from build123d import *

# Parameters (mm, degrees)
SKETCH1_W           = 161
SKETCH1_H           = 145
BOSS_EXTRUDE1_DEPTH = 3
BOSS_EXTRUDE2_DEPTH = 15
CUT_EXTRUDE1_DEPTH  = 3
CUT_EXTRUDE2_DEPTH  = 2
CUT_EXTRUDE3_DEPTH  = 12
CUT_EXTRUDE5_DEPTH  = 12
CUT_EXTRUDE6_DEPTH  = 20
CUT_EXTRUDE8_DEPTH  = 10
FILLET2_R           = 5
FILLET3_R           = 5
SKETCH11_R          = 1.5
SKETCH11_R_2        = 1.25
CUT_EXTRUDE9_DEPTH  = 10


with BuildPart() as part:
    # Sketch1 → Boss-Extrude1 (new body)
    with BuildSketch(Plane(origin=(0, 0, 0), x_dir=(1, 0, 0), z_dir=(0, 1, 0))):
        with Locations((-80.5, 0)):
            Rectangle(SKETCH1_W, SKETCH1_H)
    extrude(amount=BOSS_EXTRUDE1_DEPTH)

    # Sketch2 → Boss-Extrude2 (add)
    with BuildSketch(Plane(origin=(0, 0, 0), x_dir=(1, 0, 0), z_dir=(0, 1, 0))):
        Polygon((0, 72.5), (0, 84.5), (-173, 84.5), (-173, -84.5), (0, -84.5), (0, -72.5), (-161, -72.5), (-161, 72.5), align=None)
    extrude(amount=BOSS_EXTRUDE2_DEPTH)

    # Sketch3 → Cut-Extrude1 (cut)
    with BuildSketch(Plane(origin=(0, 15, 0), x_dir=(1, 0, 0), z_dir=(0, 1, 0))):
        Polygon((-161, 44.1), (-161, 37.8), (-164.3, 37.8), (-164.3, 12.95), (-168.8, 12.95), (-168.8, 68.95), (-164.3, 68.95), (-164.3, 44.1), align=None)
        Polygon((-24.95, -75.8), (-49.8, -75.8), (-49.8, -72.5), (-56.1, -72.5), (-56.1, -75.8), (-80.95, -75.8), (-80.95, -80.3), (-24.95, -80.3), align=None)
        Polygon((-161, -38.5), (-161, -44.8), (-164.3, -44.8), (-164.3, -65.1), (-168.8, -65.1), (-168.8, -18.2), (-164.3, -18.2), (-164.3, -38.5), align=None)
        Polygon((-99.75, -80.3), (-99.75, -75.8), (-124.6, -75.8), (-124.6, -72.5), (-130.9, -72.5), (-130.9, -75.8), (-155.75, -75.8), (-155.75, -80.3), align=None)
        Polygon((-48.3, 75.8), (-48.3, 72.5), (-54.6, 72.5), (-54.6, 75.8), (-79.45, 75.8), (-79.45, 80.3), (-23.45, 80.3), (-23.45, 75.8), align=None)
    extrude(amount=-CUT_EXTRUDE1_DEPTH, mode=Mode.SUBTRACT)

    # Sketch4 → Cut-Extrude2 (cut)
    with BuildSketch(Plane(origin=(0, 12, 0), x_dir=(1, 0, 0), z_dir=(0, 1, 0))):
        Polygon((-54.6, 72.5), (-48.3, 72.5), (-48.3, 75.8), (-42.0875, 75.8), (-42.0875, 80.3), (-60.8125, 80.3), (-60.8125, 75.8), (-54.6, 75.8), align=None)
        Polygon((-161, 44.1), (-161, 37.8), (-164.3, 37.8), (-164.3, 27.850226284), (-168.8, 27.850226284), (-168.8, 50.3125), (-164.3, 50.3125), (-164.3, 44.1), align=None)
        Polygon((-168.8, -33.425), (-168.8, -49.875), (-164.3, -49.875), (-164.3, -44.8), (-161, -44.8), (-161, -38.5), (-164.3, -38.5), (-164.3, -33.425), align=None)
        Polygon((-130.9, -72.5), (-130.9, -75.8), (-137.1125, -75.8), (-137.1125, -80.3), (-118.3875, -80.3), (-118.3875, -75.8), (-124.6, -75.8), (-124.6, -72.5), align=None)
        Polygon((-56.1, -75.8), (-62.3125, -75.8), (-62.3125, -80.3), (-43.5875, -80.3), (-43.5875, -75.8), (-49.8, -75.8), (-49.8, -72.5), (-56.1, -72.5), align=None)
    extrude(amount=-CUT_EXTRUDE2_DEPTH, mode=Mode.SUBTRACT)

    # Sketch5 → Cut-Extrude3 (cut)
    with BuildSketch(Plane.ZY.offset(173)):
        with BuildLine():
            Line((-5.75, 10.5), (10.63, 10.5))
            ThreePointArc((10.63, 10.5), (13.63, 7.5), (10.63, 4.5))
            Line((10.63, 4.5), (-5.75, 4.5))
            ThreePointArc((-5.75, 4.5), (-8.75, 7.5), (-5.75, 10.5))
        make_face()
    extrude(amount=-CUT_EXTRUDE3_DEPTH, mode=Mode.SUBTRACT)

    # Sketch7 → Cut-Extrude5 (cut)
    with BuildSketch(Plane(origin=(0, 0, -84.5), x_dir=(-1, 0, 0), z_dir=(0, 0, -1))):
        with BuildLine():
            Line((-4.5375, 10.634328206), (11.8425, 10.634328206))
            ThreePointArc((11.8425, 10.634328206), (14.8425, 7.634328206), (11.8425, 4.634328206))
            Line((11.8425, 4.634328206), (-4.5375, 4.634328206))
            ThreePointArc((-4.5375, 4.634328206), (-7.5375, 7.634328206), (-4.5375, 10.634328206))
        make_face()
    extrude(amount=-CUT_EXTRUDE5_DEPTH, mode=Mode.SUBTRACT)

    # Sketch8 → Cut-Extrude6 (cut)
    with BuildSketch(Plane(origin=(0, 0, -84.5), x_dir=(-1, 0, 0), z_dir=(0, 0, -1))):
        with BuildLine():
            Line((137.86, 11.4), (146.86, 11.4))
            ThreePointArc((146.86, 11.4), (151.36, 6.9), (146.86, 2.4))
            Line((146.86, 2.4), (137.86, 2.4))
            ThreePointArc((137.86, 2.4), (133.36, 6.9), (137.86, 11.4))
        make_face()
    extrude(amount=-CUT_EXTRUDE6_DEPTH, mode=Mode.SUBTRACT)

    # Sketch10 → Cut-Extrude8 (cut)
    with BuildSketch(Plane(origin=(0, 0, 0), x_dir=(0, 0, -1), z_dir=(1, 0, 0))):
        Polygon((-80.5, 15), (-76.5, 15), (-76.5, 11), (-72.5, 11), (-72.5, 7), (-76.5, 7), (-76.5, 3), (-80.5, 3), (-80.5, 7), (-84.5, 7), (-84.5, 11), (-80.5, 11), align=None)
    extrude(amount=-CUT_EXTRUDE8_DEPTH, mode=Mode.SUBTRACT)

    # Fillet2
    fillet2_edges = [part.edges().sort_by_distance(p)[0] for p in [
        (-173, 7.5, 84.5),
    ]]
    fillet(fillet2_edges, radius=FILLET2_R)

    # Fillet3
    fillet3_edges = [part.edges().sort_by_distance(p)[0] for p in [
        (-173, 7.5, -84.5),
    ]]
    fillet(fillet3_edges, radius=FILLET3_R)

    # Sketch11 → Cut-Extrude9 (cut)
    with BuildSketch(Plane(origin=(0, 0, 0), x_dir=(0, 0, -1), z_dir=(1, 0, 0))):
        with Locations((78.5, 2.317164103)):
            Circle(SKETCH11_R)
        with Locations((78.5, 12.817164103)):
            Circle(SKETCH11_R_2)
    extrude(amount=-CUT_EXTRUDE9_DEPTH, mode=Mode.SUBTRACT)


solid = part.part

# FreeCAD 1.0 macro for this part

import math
import FreeCAD as App
import Part
import Sketcher
Q = App.Units.Quantity


def edges_at(feature, points):
    """Names of the edges that pass closest to the given points."""
    edges = feature.Shape.Edges
    near = lambda p: min(range(len(edges)), key=lambda i: edges[i].distToShape(Part.Vertex(*p))[0])
    return sorted({f"Edge{near(p) + 1}" for p in points})

doc = App.newDocument("Part")
body = doc.addObject("PartDesign::Body", "Body")

# Sketch on XZ plane
sketch1 = doc.addObject("Sketcher::SketchObject", "Sketch")
body.addObject(sketch1)
sketch1.AttachmentSupport = (doc.XZ_Plane, [""])
sketch1.MapMode = "FlatFace"
sketch1.addGeometry([
    Part.LineSegment(App.Vector(-161, -72.5, 0), App.Vector(-161, 72.5, 0)),
    Part.LineSegment(App.Vector(-161, 72.5, 0), App.Vector(0, 72.5, 0)),
    Part.LineSegment(App.Vector(0, 72.5, 0), App.Vector(0, -72.5, 0)),
    Part.LineSegment(App.Vector(0, -72.5, 0), App.Vector(-161, -72.5, 0)),
], False)
sketch1.addConstraint([
    Sketcher.Constraint("Coincident", 0, 2, 1, 1),
    Sketcher.Constraint("Coincident", 1, 2, 2, 1),
    Sketcher.Constraint("Coincident", 2, 2, 3, 1),
    Sketcher.Constraint("Coincident", 3, 2, 0, 1),
    Sketcher.Constraint("Vertical", 0),
    Sketcher.Constraint("Horizontal", 1),
    Sketcher.Constraint("Vertical", 2),
    Sketcher.Constraint("Horizontal", 3),
    Sketcher.Constraint("Symmetric", 1, 2, 2, 2, -1, 1),
    Sketcher.Constraint("DistanceX", 1, 1, 1, 2, Q("161 mm")),
    Sketcher.Constraint("DistanceY", 0, 1, 0, 2, Q("145 mm")),
])
pad1 = doc.addObject("PartDesign::Pad", "Pad")
body.addObject(pad1)
pad1.Profile = sketch1
pad1.Length = 3
pad1.Reversed = True

# Sketch on XZ plane
sketch2 = doc.addObject("Sketcher::SketchObject", "Sketch001")
body.addObject(sketch2)
sketch2.AttachmentSupport = (doc.XZ_Plane, [""])
sketch2.MapMode = "FlatFace"
sketch2.addGeometry([
    Part.LineSegment(App.Vector(0, -72.5, 0), App.Vector(0, -84.5, 0)),  # 0
    Part.LineSegment(App.Vector(0, -84.5, 0), App.Vector(-173, -84.5, 0)),  # 1
    Part.LineSegment(App.Vector(-173, -84.5, 0), App.Vector(-173, 84.5, 0)),  # 2
    Part.LineSegment(App.Vector(-173, 84.5, 0), App.Vector(0, 84.5, 0)),  # 3
    Part.LineSegment(App.Vector(0, 84.5, 0), App.Vector(0, 72.5, 0)),  # 4
    Part.LineSegment(App.Vector(0, 72.5, 0), App.Vector(-161, 72.5, 0)),  # 5
    Part.LineSegment(App.Vector(-161, 72.5, 0), App.Vector(-161, -72.5, 0)),  # 6
    Part.LineSegment(App.Vector(-161, -72.5, 0), App.Vector(0, -72.5, 0)),  # 7
], False)
sketch2.addConstraint([
    Sketcher.Constraint("Coincident", 0, 2, 1, 1),
    Sketcher.Constraint("Coincident", 1, 2, 2, 1),
    Sketcher.Constraint("Coincident", 2, 2, 3, 1),
    Sketcher.Constraint("Coincident", 3, 2, 4, 1),
    Sketcher.Constraint("Coincident", 4, 2, 5, 1),
    Sketcher.Constraint("Coincident", 5, 2, 6, 1),
    Sketcher.Constraint("Coincident", 6, 2, 7, 1),
    Sketcher.Constraint("Coincident", 7, 2, 0, 1),
    Sketcher.Constraint("Vertical", 0),
    Sketcher.Constraint("Horizontal", 1),
    Sketcher.Constraint("Vertical", 2),
    Sketcher.Constraint("Horizontal", 3),
    Sketcher.Constraint("Vertical", 4),
    Sketcher.Constraint("Horizontal", 5),
    Sketcher.Constraint("Vertical", 6),
    Sketcher.Constraint("Horizontal", 7),
    Sketcher.Constraint("Symmetric", 0, 2, 3, 2, -1, 1),
    Sketcher.Constraint("Symmetric", 4, 2, 7, 2, -1),
    Sketcher.Constraint("DistanceX", 1, 2, 1, 1, Q("173 mm")),
    Sketcher.Constraint("DistanceX", 5, 2, 5, 1, Q("161 mm")),
    Sketcher.Constraint("DistanceY", 0, 2, 0, 1, Q("12 mm")),
    Sketcher.Constraint("DistanceY", 2, 1, 2, 2, Q("169 mm")),
])
pad2 = doc.addObject("PartDesign::Pad", "Pad001")
body.addObject(pad2)
pad2.Profile = sketch2
pad2.Length = 15
pad2.Reversed = True

# Sketch on XZ plane
sketch3 = doc.addObject("Sketcher::SketchObject", "Sketch002")
body.addObject(sketch3)
sketch3.AttachmentSupport = (doc.XZ_Plane, [""])
sketch3.MapMode = "FlatFace"
sketch3.AttachmentOffset = App.Placement(App.Vector(0, 0, -15), App.Rotation())
sketch3.addGeometry([
    Part.LineSegment(App.Vector(-161, -37.8, 0), App.Vector(-161, -44.1, 0)),  # 0
    Part.LineSegment(App.Vector(-161, -44.1, 0), App.Vector(-164.3, -44.1, 0)),  # 1
    Part.LineSegment(App.Vector(-164.3, -44.1, 0), App.Vector(-164.3, -68.95, 0)),  # 2
    Part.LineSegment(App.Vector(-164.3, -68.95, 0), App.Vector(-168.8, -68.95, 0)),  # 3
    Part.LineSegment(App.Vector(-168.8, -68.95, 0), App.Vector(-168.8, -12.95, 0)),  # 4
    Part.LineSegment(App.Vector(-168.8, -12.95, 0), App.Vector(-164.3, -12.95, 0)),  # 5
    Part.LineSegment(App.Vector(-164.3, -12.95, 0), App.Vector(-164.3, -37.8, 0)),  # 6
    Part.LineSegment(App.Vector(-164.3, -37.8, 0), App.Vector(-161, -37.8, 0)),  # 7
    Part.LineSegment(App.Vector(-24.95, 75.8, 0), App.Vector(-49.8, 75.8, 0)),  # 8
    Part.LineSegment(App.Vector(-49.8, 75.8, 0), App.Vector(-49.8, 72.5, 0)),  # 9
    Part.LineSegment(App.Vector(-49.8, 72.5, 0), App.Vector(-56.1, 72.5, 0)),  # 10
    Part.LineSegment(App.Vector(-56.1, 72.5, 0), App.Vector(-56.1, 75.8, 0)),  # 11
    Part.LineSegment(App.Vector(-56.1, 75.8, 0), App.Vector(-80.95, 75.8, 0)),  # 12
    Part.LineSegment(App.Vector(-80.95, 75.8, 0), App.Vector(-80.95, 80.3, 0)),  # 13
    Part.LineSegment(App.Vector(-80.95, 80.3, 0), App.Vector(-24.95, 80.3, 0)),  # 14
    Part.LineSegment(App.Vector(-24.95, 80.3, 0), App.Vector(-24.95, 75.8, 0)),  # 15
    Part.LineSegment(App.Vector(-161, 44.8, 0), App.Vector(-161, 38.5, 0)),  # 16
    Part.LineSegment(App.Vector(-161, 38.5, 0), App.Vector(-164.3, 38.5, 0)),  # 17
    Part.LineSegment(App.Vector(-164.3, 38.5, 0), App.Vector(-164.3, 18.2, 0)),  # 18
    Part.LineSegment(App.Vector(-164.3, 18.2, 0), App.Vector(-168.8, 18.2, 0)),  # 19
    Part.LineSegment(App.Vector(-168.8, 18.2, 0), App.Vector(-168.8, 65.1, 0)),  # 20
    Part.LineSegment(App.Vector(-168.8, 65.1, 0), App.Vector(-164.3, 65.1, 0)),  # 21
    Part.LineSegment(App.Vector(-164.3, 65.1, 0), App.Vector(-164.3, 44.8, 0)),  # 22
    Part.LineSegment(App.Vector(-164.3, 44.8, 0), App.Vector(-161, 44.8, 0)),  # 23
    Part.LineSegment(App.Vector(-99.75, 80.3, 0), App.Vector(-99.75, 75.8, 0)),  # 24
    Part.LineSegment(App.Vector(-99.75, 75.8, 0), App.Vector(-124.6, 75.8, 0)),  # 25
    Part.LineSegment(App.Vector(-124.6, 75.8, 0), App.Vector(-124.6, 72.5, 0)),  # 26
    Part.LineSegment(App.Vector(-124.6, 72.5, 0), App.Vector(-130.9, 72.5, 0)),  # 27
    Part.LineSegment(App.Vector(-130.9, 72.5, 0), App.Vector(-130.9, 75.8, 0)),  # 28
    Part.LineSegment(App.Vector(-130.9, 75.8, 0), App.Vector(-155.75, 75.8, 0)),  # 29
    Part.LineSegment(App.Vector(-155.75, 75.8, 0), App.Vector(-155.75, 80.3, 0)),  # 30
    Part.LineSegment(App.Vector(-155.75, 80.3, 0), App.Vector(-99.75, 80.3, 0)),  # 31
    Part.LineSegment(App.Vector(-48.3, -72.5, 0), App.Vector(-48.3, -75.8, 0)),  # 32
    Part.LineSegment(App.Vector(-48.3, -75.8, 0), App.Vector(-23.45, -75.8, 0)),  # 33
    Part.LineSegment(App.Vector(-23.45, -75.8, 0), App.Vector(-23.45, -80.3, 0)),  # 34
    Part.LineSegment(App.Vector(-23.45, -80.3, 0), App.Vector(-79.45, -80.3, 0)),  # 35
    Part.LineSegment(App.Vector(-79.45, -80.3, 0), App.Vector(-79.45, -75.8, 0)),  # 36
    Part.LineSegment(App.Vector(-79.45, -75.8, 0), App.Vector(-54.6, -75.8, 0)),  # 37
    Part.LineSegment(App.Vector(-54.6, -75.8, 0), App.Vector(-54.6, -72.5, 0)),  # 38
    Part.LineSegment(App.Vector(-54.6, -72.5, 0), App.Vector(-48.3, -72.5, 0)),  # 39
], False)
sketch3.addConstraint([
    Sketcher.Constraint("Coincident", 0, 2, 1, 1),
    Sketcher.Constraint("Coincident", 1, 2, 2, 1),
    Sketcher.Constraint("Coincident", 2, 2, 3, 1),
    Sketcher.Constraint("Coincident", 3, 2, 4, 1),
    Sketcher.Constraint("Coincident", 4, 2, 5, 1),
    Sketcher.Constraint("Coincident", 5, 2, 6, 1),
    Sketcher.Constraint("Coincident", 6, 2, 7, 1),
    Sketcher.Constraint("Coincident", 7, 2, 0, 1),
    Sketcher.Constraint("Coincident", 8, 2, 9, 1),
    Sketcher.Constraint("Coincident", 9, 2, 10, 1),
    Sketcher.Constraint("Coincident", 10, 2, 11, 1),
    Sketcher.Constraint("Coincident", 11, 2, 12, 1),
    Sketcher.Constraint("Coincident", 12, 2, 13, 1),
    Sketcher.Constraint("Coincident", 13, 2, 14, 1),
    Sketcher.Constraint("Coincident", 14, 2, 15, 1),
    Sketcher.Constraint("Coincident", 15, 2, 8, 1),
    Sketcher.Constraint("Coincident", 16, 2, 17, 1),
    Sketcher.Constraint("Coincident", 17, 2, 18, 1),
    Sketcher.Constraint("Coincident", 18, 2, 19, 1),
    Sketcher.Constraint("Coincident", 19, 2, 20, 1),
    Sketcher.Constraint("Coincident", 20, 2, 21, 1),
    Sketcher.Constraint("Coincident", 21, 2, 22, 1),
    Sketcher.Constraint("Coincident", 22, 2, 23, 1),
    Sketcher.Constraint("Coincident", 23, 2, 16, 1),
    Sketcher.Constraint("Coincident", 24, 2, 25, 1),
    Sketcher.Constraint("Coincident", 25, 2, 26, 1),
    Sketcher.Constraint("Coincident", 26, 2, 27, 1),
    Sketcher.Constraint("Coincident", 27, 2, 28, 1),
    Sketcher.Constraint("Coincident", 28, 2, 29, 1),
    Sketcher.Constraint("Coincident", 29, 2, 30, 1),
    Sketcher.Constraint("Coincident", 30, 2, 31, 1),
    Sketcher.Constraint("Coincident", 31, 2, 24, 1),
    Sketcher.Constraint("Coincident", 32, 2, 33, 1),
    Sketcher.Constraint("Coincident", 33, 2, 34, 1),
    Sketcher.Constraint("Coincident", 34, 2, 35, 1),
    Sketcher.Constraint("Coincident", 35, 2, 36, 1),
    Sketcher.Constraint("Coincident", 36, 2, 37, 1),
    Sketcher.Constraint("Coincident", 37, 2, 38, 1),
    Sketcher.Constraint("Coincident", 38, 2, 39, 1),
    Sketcher.Constraint("Coincident", 39, 2, 32, 1),
    Sketcher.Constraint("Vertical", 0),
    Sketcher.Constraint("Horizontal", 1),
    Sketcher.Constraint("Vertical", 2),
    Sketcher.Constraint("Horizontal", 3),
    Sketcher.Constraint("Vertical", 4),
    Sketcher.Constraint("Horizontal", 5),
    Sketcher.Constraint("Vertical", 6),
    Sketcher.Constraint("Horizontal", 7),
    Sketcher.Constraint("Horizontal", 8),
    Sketcher.Constraint("Vertical", 9),
    Sketcher.Constraint("Horizontal", 10),
    Sketcher.Constraint("Vertical", 11),
    Sketcher.Constraint("Horizontal", 12),
    Sketcher.Constraint("Vertical", 13),
    Sketcher.Constraint("Horizontal", 14),
    Sketcher.Constraint("Vertical", 15),
    Sketcher.Constraint("Vertical", 16),
    Sketcher.Constraint("Horizontal", 17),
    Sketcher.Constraint("Vertical", 18),
    Sketcher.Constraint("Horizontal", 19),
    Sketcher.Constraint("Vertical", 20),
    Sketcher.Constraint("Horizontal", 21),
    Sketcher.Constraint("Vertical", 22),
    Sketcher.Constraint("Horizontal", 23),
    Sketcher.Constraint("Vertical", 24),
    Sketcher.Constraint("Horizontal", 25),
    Sketcher.Constraint("Vertical", 26),
    Sketcher.Constraint("Horizontal", 27),
    Sketcher.Constraint("Vertical", 28),
    Sketcher.Constraint("Horizontal", 29),
    Sketcher.Constraint("Vertical", 30),
    Sketcher.Constraint("Horizontal", 31),
    Sketcher.Constraint("Vertical", 32),
    Sketcher.Constraint("Horizontal", 33),
    Sketcher.Constraint("Vertical", 34),
    Sketcher.Constraint("Horizontal", 35),
    Sketcher.Constraint("Vertical", 36),
    Sketcher.Constraint("Horizontal", 37),
    Sketcher.Constraint("Vertical", 38),
    Sketcher.Constraint("Horizontal", 39),
    Sketcher.Constraint("Horizontal", 8, 2, 11, 2),
    Sketcher.Constraint("Horizontal", 15, 2, 24, 2),
    Sketcher.Constraint("Horizontal", 10, 2, 26, 2),
    Sketcher.Constraint("Horizontal", 25, 2, 28, 2),
    Sketcher.Constraint("Horizontal", 14, 2, 30, 2),
    Sketcher.Constraint("Horizontal", 33, 2, 36, 2),
    Sketcher.Constraint("Vertical", 2, 2, 5, 2),
    Sketcher.Constraint("Vertical", 7, 2, 16, 2),
    Sketcher.Constraint("Vertical", 6, 2, 17, 2),
    Sketcher.Constraint("Vertical", 4, 2, 19, 2),
    Sketcher.Constraint("Vertical", 18, 2, 21, 2),
    Sketcher.Constraint("Equal", 8, 12),
    Sketcher.Constraint("Equal", 12, 25),
    Sketcher.Constraint("Equal", 10, 27),
    Sketcher.Constraint("Equal", 25, 29),
    Sketcher.Constraint("Equal", 29, 33),
    Sketcher.Constraint("Equal", 31, 35),
    Sketcher.Constraint("Equal", 33, 37),
    Sketcher.Constraint("Equal", 39, 0),
    Sketcher.Constraint("Equal", 37, 2),
    Sketcher.Constraint("Equal", 35, 4),
    Sketcher.Constraint("Equal", 23, 9),
    Sketcher.Constraint("Equal", 21, 13),
    Sketcher.Constraint("Equal", 0, 16),
    Sketcher.Constraint("Equal", 18, 22),
    Sketcher.Constraint("Equal", 28, 32),
    Sketcher.Constraint("Equal", 30, 34),
    Sketcher.Constraint("DistanceX", 14, 1, 14, 2, Q("56 mm")),
    Sketcher.Constraint("DistanceX", 1, 2, 1, 1, Q("3.3 mm")),
    Sketcher.Constraint("DistanceX", 3, 2, 3, 1, Q("4.5 mm")),
    Sketcher.Constraint("DistanceX", 10, 2, 10, 1, Q("6.3 mm")),
    Sketcher.Constraint("DistanceY", 18, 2, 18, 1, Q("20.3 mm")),
    Sketcher.Constraint("DistanceX", 0, 2, -1, 1, Q("161 mm")),
    Sketcher.Constraint("DistanceX", 4, 2, 8, 2, Q("119 mm")),
    Sketcher.Constraint("DistanceY", 6, 2, 18, 2, Q("56 mm")),
    Sketcher.Constraint("DistanceX", 2, 2, 32, 2, Q("116 mm")),
    Sketcher.Constraint("DistanceY", 32, 2, 7, 2, Q("38 mm")),
    Sketcher.Constraint("DistanceY", 0, 2, -1, 1, Q("44.1 mm")),
    Sketcher.Constraint("DistanceY", -1, 1, 8, 2, Q("75.8 mm")),
    Sketcher.Constraint("DistanceX", 25, 2, -1, 1, Q("124.6 mm")),
])
pocket1 = doc.addObject("PartDesign::Pocket", "Pocket")
body.addObject(pocket1)
pocket1.Profile = sketch3
pocket1.Length = 3
pocket1.Reversed = True

# Sketch on XZ plane
sketch4 = doc.addObject("Sketcher::SketchObject", "Sketch003")
body.addObject(sketch4)
sketch4.AttachmentSupport = (doc.XZ_Plane, [""])
sketch4.MapMode = "FlatFace"
sketch4.AttachmentOffset = App.Placement(App.Vector(0, 0, -12), App.Rotation())
sketch4.addGeometry([
    Part.LineSegment(App.Vector(-54.6, -72.5, 0), App.Vector(-48.3, -72.5, 0)),  # 0
    Part.LineSegment(App.Vector(-48.3, -72.5, 0), App.Vector(-48.3, -75.8, 0)),  # 1
    Part.LineSegment(App.Vector(-48.3, -75.8, 0), App.Vector(-42.0875, -75.8, 0)),  # 2
    Part.LineSegment(App.Vector(-42.0875, -75.8, 0), App.Vector(-42.0875, -80.3, 0)),  # 3
    Part.LineSegment(App.Vector(-42.0875, -80.3, 0), App.Vector(-60.8125, -80.3, 0)),  # 4
    Part.LineSegment(App.Vector(-60.8125, -80.3, 0), App.Vector(-60.8125, -75.8, 0)),  # 5
    Part.LineSegment(App.Vector(-60.8125, -75.8, 0), App.Vector(-54.6, -75.8, 0)),  # 6
    Part.LineSegment(App.Vector(-54.6, -75.8, 0), App.Vector(-54.6, -72.5, 0)),  # 7
    Part.LineSegment(App.Vector(-161, -37.8, 0), App.Vector(-161, -44.1, 0)),  # 8
    Part.LineSegment(App.Vector(-161, -44.1, 0), App.Vector(-164.3, -44.1, 0)),  # 9
    Part.LineSegment(App.Vector(-164.3, -44.1, 0), App.Vector(-164.3, -50.3125, 0)),  # 10
    Part.LineSegment(App.Vector(-164.3, -50.3125, 0), App.Vector(-168.8, -50.3125, 0)),  # 11
    Part.LineSegment(App.Vector(-168.8, -50.3125, 0), App.Vector(-168.8, -27.850226, 0)),  # 12
    Part.LineSegment(App.Vector(-168.8, -27.850226, 0), App.Vector(-164.3, -27.850226, 0)),  # 13
    Part.LineSegment(App.Vector(-164.3, -27.850226, 0), App.Vector(-164.3, -37.8, 0)),  # 14
    Part.LineSegment(App.Vector(-164.3, -37.8, 0), App.Vector(-161, -37.8, 0)),  # 15
    Part.LineSegment(App.Vector(-168.8, 33.425, 0), App.Vector(-168.8, 49.875, 0)),  # 16
    Part.LineSegment(App.Vector(-168.8, 49.875, 0), App.Vector(-164.3, 49.875, 0)),  # 17
    Part.LineSegment(App.Vector(-164.3, 49.875, 0), App.Vector(-164.3, 44.8, 0)),  # 18
    Part.LineSegment(App.Vector(-164.3, 44.8, 0), App.Vector(-161, 44.8, 0)),  # 19
    Part.LineSegment(App.Vector(-161, 44.8, 0), App.Vector(-161, 38.5, 0)),  # 20
    Part.LineSegment(App.Vector(-161, 38.5, 0), App.Vector(-164.3, 38.5, 0)),  # 21
    Part.LineSegment(App.Vector(-164.3, 38.5, 0), App.Vector(-164.3, 33.425, 0)),  # 22
    Part.LineSegment(App.Vector(-164.3, 33.425, 0), App.Vector(-168.8, 33.425, 0)),  # 23
    Part.LineSegment(App.Vector(-130.9, 72.5, 0), App.Vector(-130.9, 75.8, 0)),  # 24
    Part.LineSegment(App.Vector(-130.9, 75.8, 0), App.Vector(-137.1125, 75.8, 0)),  # 25
    Part.LineSegment(App.Vector(-137.1125, 75.8, 0), App.Vector(-137.1125, 80.3, 0)),  # 26
    Part.LineSegment(App.Vector(-137.1125, 80.3, 0), App.Vector(-118.3875, 80.3, 0)),  # 27
    Part.LineSegment(App.Vector(-118.3875, 80.3, 0), App.Vector(-118.3875, 75.8, 0)),  # 28
    Part.LineSegment(App.Vector(-118.3875, 75.8, 0), App.Vector(-124.6, 75.8, 0)),  # 29
    Part.LineSegment(App.Vector(-124.6, 75.8, 0), App.Vector(-124.6, 72.5, 0)),  # 30
    Part.LineSegment(App.Vector(-124.6, 72.5, 0), App.Vector(-130.9, 72.5, 0)),  # 31
    Part.LineSegment(App.Vector(-56.1, 75.8, 0), App.Vector(-62.3125, 75.8, 0)),  # 32
    Part.LineSegment(App.Vector(-62.3125, 75.8, 0), App.Vector(-62.3125, 80.3, 0)),  # 33
    Part.LineSegment(App.Vector(-62.3125, 80.3, 0), App.Vector(-43.5875, 80.3, 0)),  # 34
    Part.LineSegment(App.Vector(-43.5875, 80.3, 0), App.Vector(-43.5875, 75.8, 0)),  # 35
    Part.LineSegment(App.Vector(-43.5875, 75.8, 0), App.Vector(-49.8, 75.8, 0)),  # 36
    Part.LineSegment(App.Vector(-49.8, 75.8, 0), App.Vector(-49.8, 72.5, 0)),  # 37
    Part.LineSegment(App.Vector(-49.8, 72.5, 0), App.Vector(-56.1, 72.5, 0)),  # 38
    Part.LineSegment(App.Vector(-56.1, 72.5, 0), App.Vector(-56.1, 75.8, 0)),  # 39
], False)
sketch4.addConstraint([
    Sketcher.Constraint("Coincident", 0, 2, 1, 1),
    Sketcher.Constraint("Coincident", 1, 2, 2, 1),
    Sketcher.Constraint("Coincident", 2, 2, 3, 1),
    Sketcher.Constraint("Coincident", 3, 2, 4, 1),
    Sketcher.Constraint("Coincident", 4, 2, 5, 1),
    Sketcher.Constraint("Coincident", 5, 2, 6, 1),
    Sketcher.Constraint("Coincident", 6, 2, 7, 1),
    Sketcher.Constraint("Coincident", 7, 2, 0, 1),
    Sketcher.Constraint("Coincident", 8, 2, 9, 1),
    Sketcher.Constraint("Coincident", 9, 2, 10, 1),
    Sketcher.Constraint("Coincident", 10, 2, 11, 1),
    Sketcher.Constraint("Coincident", 11, 2, 12, 1),
    Sketcher.Constraint("Coincident", 12, 2, 13, 1),
    Sketcher.Constraint("Coincident", 13, 2, 14, 1),
    Sketcher.Constraint("Coincident", 14, 2, 15, 1),
    Sketcher.Constraint("Coincident", 15, 2, 8, 1),
    Sketcher.Constraint("Coincident", 16, 2, 17, 1),
    Sketcher.Constraint("Coincident", 17, 2, 18, 1),
    Sketcher.Constraint("Coincident", 18, 2, 19, 1),
    Sketcher.Constraint("Coincident", 19, 2, 20, 1),
    Sketcher.Constraint("Coincident", 20, 2, 21, 1),
    Sketcher.Constraint("Coincident", 21, 2, 22, 1),
    Sketcher.Constraint("Coincident", 22, 2, 23, 1),
    Sketcher.Constraint("Coincident", 23, 2, 16, 1),
    Sketcher.Constraint("Coincident", 24, 2, 25, 1),
    Sketcher.Constraint("Coincident", 25, 2, 26, 1),
    Sketcher.Constraint("Coincident", 26, 2, 27, 1),
    Sketcher.Constraint("Coincident", 27, 2, 28, 1),
    Sketcher.Constraint("Coincident", 28, 2, 29, 1),
    Sketcher.Constraint("Coincident", 29, 2, 30, 1),
    Sketcher.Constraint("Coincident", 30, 2, 31, 1),
    Sketcher.Constraint("Coincident", 31, 2, 24, 1),
    Sketcher.Constraint("Coincident", 32, 2, 33, 1),
    Sketcher.Constraint("Coincident", 33, 2, 34, 1),
    Sketcher.Constraint("Coincident", 34, 2, 35, 1),
    Sketcher.Constraint("Coincident", 35, 2, 36, 1),
    Sketcher.Constraint("Coincident", 36, 2, 37, 1),
    Sketcher.Constraint("Coincident", 37, 2, 38, 1),
    Sketcher.Constraint("Coincident", 38, 2, 39, 1),
    Sketcher.Constraint("Coincident", 39, 2, 32, 1),
    Sketcher.Constraint("Horizontal", 0),
    Sketcher.Constraint("Vertical", 1),
    Sketcher.Constraint("Horizontal", 2),
    Sketcher.Constraint("Vertical", 3),
    Sketcher.Constraint("Horizontal", 4),
    Sketcher.Constraint("Vertical", 5),
    Sketcher.Constraint("Horizontal", 6),
    Sketcher.Constraint("Vertical", 7),
    Sketcher.Constraint("Vertical", 8),
    Sketcher.Constraint("Horizontal", 9),
    Sketcher.Constraint("Vertical", 10),
    Sketcher.Constraint("Horizontal", 11),
    Sketcher.Constraint("Vertical", 12),
    Sketcher.Constraint("Horizontal", 13),
    Sketcher.Constraint("Vertical", 14),
    Sketcher.Constraint("Horizontal", 15),
    Sketcher.Constraint("Vertical", 16),
    Sketcher.Constraint("Horizontal", 17),
    Sketcher.Constraint("Vertical", 18),
    Sketcher.Constraint("Horizontal", 19),
    Sketcher.Constraint("Vertical", 20),
    Sketcher.Constraint("Horizontal", 21),
    Sketcher.Constraint("Vertical", 22),
    Sketcher.Constraint("Horizontal", 23),
    Sketcher.Constraint("Vertical", 24),
    Sketcher.Constraint("Horizontal", 25),
    Sketcher.Constraint("Vertical", 26),
    Sketcher.Constraint("Horizontal", 27),
    Sketcher.Constraint("Vertical", 28),
    Sketcher.Constraint("Horizontal", 29),
    Sketcher.Constraint("Vertical", 30),
    Sketcher.Constraint("Horizontal", 31),
    Sketcher.Constraint("Horizontal", 32),
    Sketcher.Constraint("Vertical", 33),
    Sketcher.Constraint("Horizontal", 34),
    Sketcher.Constraint("Vertical", 35),
    Sketcher.Constraint("Horizontal", 36),
    Sketcher.Constraint("Vertical", 37),
    Sketcher.Constraint("Horizontal", 38),
    Sketcher.Constraint("Vertical", 39),
    Sketcher.Constraint("Horizontal", 2, 2, 5, 2),
    Sketcher.Constraint("Horizontal", 25, 2, 28, 2),
    Sketcher.Constraint("Horizontal", 29, 2, 32, 2),
    Sketcher.Constraint("Horizontal", 27, 2, 33, 2),
    Sketcher.Constraint("Horizontal", 32, 2, 35, 2),
    Sketcher.Constraint("Horizontal", 31, 2, 37, 2),
    Sketcher.Constraint("Vertical", 10, 2, 13, 2),
    Sketcher.Constraint("Vertical", 12, 2, 16, 2),
    Sketcher.Constraint("Vertical", 14, 2, 17, 2),
    Sketcher.Constraint("Vertical", 15, 2, 19, 2),
    Sketcher.Constraint("Vertical", 18, 2, 21, 2),
    Sketcher.Constraint("Equal", 2, 6),
    Sketcher.Constraint("Equal", 6, 25),
    Sketcher.Constraint("Equal", 4, 27),
    Sketcher.Constraint("Equal", 25, 29),
    Sketcher.Constraint("Equal", 29, 32),
    Sketcher.Constraint("Equal", 27, 34),
    Sketcher.Constraint("Equal", 32, 36),
    Sketcher.Constraint("Equal", 21, 1),
    Sketcher.Constraint("Equal", 23, 3),
    Sketcher.Constraint("Equal", 38, 8),
    Sketcher.Constraint("Equal", 36, 10),
    Sketcher.Constraint("Equal", 8, 20),
    Sketcher.Constraint("Equal", 18, 22),
    Sketcher.Constraint("Equal", 7, 24),
    Sketcher.Constraint("Equal", 5, 26),
    Sketcher.Constraint("DistanceX", 0, 1, 0, 2, Q("6.3 mm")),
    Sketcher.Constraint("DistanceX", 9, 2, 9, 1, Q("3.3 mm")),
    Sketcher.Constraint("DistanceX", 11, 2, 11, 1, Q("4.5 mm")),
    Sketcher.Constraint("DistanceX", 8, 2, -1, 1, Q("161 mm")),
    Sketcher.Constraint("DistanceY", 19, 2, 24, 2, Q("31 mm")),
    Sketcher.Constraint("DistanceY", 16, 1, 16, 2, Q("16.45 mm")),
    Sketcher.Constraint("DistanceX", 0, 2, -1, 1, Q("48.3 mm")),
    Sketcher.Constraint("DistanceY", 0, 2, -1, 1, Q("72.5 mm")),
    Sketcher.Constraint("DistanceY", 8, 2, -1, 1, Q("44.1 mm")),
    Sketcher.Constraint("DistanceY", -1, 1, 18, 2, Q("44.8 mm")),
    Sketcher.Constraint("DistanceX", 24, 2, -1, 1, Q("130.9 mm")),
    Sketcher.Constraint("DistanceX", 36, 2, -1, 1, Q("49.8 mm")),
    Sketcher.Constraint("DistanceX", 4, 2, 4, 1, Q("18.725 mm")),
    Sketcher.Constraint("DistanceY", 12, 1, 12, 2, Q("22.462274 mm")),
])
pocket2 = doc.addObject("PartDesign::Pocket", "Pocket001")
body.addObject(pocket2)
pocket2.Profile = sketch4
pocket2.Length = 2
pocket2.Reversed = True

# Sketch on YZ plane
sketch5 = doc.addObject("Sketcher::SketchObject", "Sketch004")
body.addObject(sketch5)
sketch5.AttachmentSupport = (doc.YZ_Plane, [""])
sketch5.MapMode = "FlatFace"
sketch5.AttachmentOffset = App.Placement(App.Vector(0, 0, -173), App.Rotation())
sketch5.addGeometry([
    Part.LineSegment(App.Vector(10.5, 10.63, 0), App.Vector(10.5, -5.75, 0)),
    Part.ArcOfCircle(Part.Circle(App.Vector(7.5, -5.75, 0), App.Vector(0, 0, 1), 3), math.radians(180), math.radians(360)),
    Part.LineSegment(App.Vector(4.5, -5.75, 0), App.Vector(4.5, 10.63, 0)),
    Part.ArcOfCircle(Part.Circle(App.Vector(7.5, 10.63, 0), App.Vector(0, 0, 1), 3), math.radians(0), math.radians(180)),
], False)
sketch5.addConstraint([
    Sketcher.Constraint("Tangent", 0, 2, 1, 2),
    Sketcher.Constraint("Tangent", 1, 1, 2, 1),
    Sketcher.Constraint("Tangent", 2, 2, 3, 2),
    Sketcher.Constraint("Tangent", 3, 1, 0, 1),
    Sketcher.Constraint("Vertical", 0),
    Sketcher.Constraint("Vertical", 2),
    Sketcher.Constraint("Radius", 1, Q("3 mm")),
    Sketcher.Constraint("DistanceY", 0, 2, 0, 1, Q("16.38 mm")),
    Sketcher.Constraint("DistanceX", -1, 1, 1, 3, Q("7.5 mm")),
    Sketcher.Constraint("DistanceY", 1, 3, -1, 1, Q("5.75 mm")),
])
pocket3 = doc.addObject("PartDesign::Pocket", "Pocket002")
body.addObject(pocket3)
pocket3.Profile = sketch5
pocket3.Length = 12
pocket3.Reversed = True

# Sketch on XY plane
sketch6 = doc.addObject("Sketcher::SketchObject", "Sketch005")
body.addObject(sketch6)
sketch6.AttachmentSupport = (doc.XY_Plane, [""])
sketch6.MapMode = "FlatFace"
sketch6.AttachmentOffset = App.Placement(App.Vector(0, 0, -84.5), App.Rotation())
sketch6.addGeometry([
    Part.LineSegment(App.Vector(-11.8425, 10.634328, 0), App.Vector(4.5375, 10.634328, 0)),
    Part.ArcOfCircle(Part.Circle(App.Vector(4.5375, 7.634328, 0), App.Vector(0, 0, 1), 3), math.radians(-90), math.radians(90)),
    Part.LineSegment(App.Vector(4.5375, 4.634328, 0), App.Vector(-11.8425, 4.634328, 0)),
    Part.ArcOfCircle(Part.Circle(App.Vector(-11.8425, 7.634328, 0), App.Vector(0, 0, 1), 3), math.radians(90), math.radians(270)),
], False)
sketch6.addConstraint([
    Sketcher.Constraint("Tangent", 0, 2, 1, 2),
    Sketcher.Constraint("Tangent", 1, 1, 2, 1),
    Sketcher.Constraint("Tangent", 2, 2, 3, 2),
    Sketcher.Constraint("Tangent", 3, 1, 0, 1),
    Sketcher.Constraint("Horizontal", 0),
    Sketcher.Constraint("Horizontal", 2),
    Sketcher.Constraint("Radius", 1, Q("3 mm")),
    Sketcher.Constraint("DistanceX", 0, 1, 0, 2, Q("16.38 mm")),
    Sketcher.Constraint("DistanceX", -1, 1, 1, 3, Q("4.5375 mm")),
    Sketcher.Constraint("DistanceY", -1, 1, 1, 3, Q("7.634328 mm")),
])
pocket4 = doc.addObject("PartDesign::Pocket", "Pocket003")
body.addObject(pocket4)
pocket4.Profile = sketch6
pocket4.Length = 12
pocket4.Reversed = True

# Sketch on XY plane
sketch7 = doc.addObject("Sketcher::SketchObject", "Sketch006")
body.addObject(sketch7)
sketch7.AttachmentSupport = (doc.XY_Plane, [""])
sketch7.MapMode = "FlatFace"
sketch7.AttachmentOffset = App.Placement(App.Vector(0, 0, -84.5), App.Rotation())
sketch7.addGeometry([
    Part.LineSegment(App.Vector(-146.86, 11.4, 0), App.Vector(-137.86, 11.4, 0)),
    Part.ArcOfCircle(Part.Circle(App.Vector(-137.86, 6.9, 0), App.Vector(0, 0, 1), 4.5), math.radians(-90), math.radians(90)),
    Part.LineSegment(App.Vector(-137.86, 2.4, 0), App.Vector(-146.86, 2.4, 0)),
    Part.ArcOfCircle(Part.Circle(App.Vector(-146.86, 6.9, 0), App.Vector(0, 0, 1), 4.5), math.radians(90), math.radians(270)),
], False)
sketch7.addConstraint([
    Sketcher.Constraint("Tangent", 0, 2, 1, 2),
    Sketcher.Constraint("Tangent", 1, 1, 2, 1),
    Sketcher.Constraint("Tangent", 2, 2, 3, 2),
    Sketcher.Constraint("Tangent", 3, 1, 0, 1),
    Sketcher.Constraint("Horizontal", 0),
    Sketcher.Constraint("Horizontal", 2),
    Sketcher.Constraint("Radius", 1, Q("4.5 mm")),
    Sketcher.Constraint("DistanceX", 0, 1, 0, 2, Q("9 mm")),
    Sketcher.Constraint("DistanceY", -1, 1, 1, 3, Q("6.9 mm")),
    Sketcher.Constraint("DistanceX", 1, 3, -1, 1, Q("137.86 mm")),
])
pocket5 = doc.addObject("PartDesign::Pocket", "Pocket004")
body.addObject(pocket5)
pocket5.Profile = sketch7
pocket5.Length = 20
pocket5.Reversed = True

# Sketch on YZ plane
sketch8 = doc.addObject("Sketcher::SketchObject", "Sketch007")
body.addObject(sketch8)
sketch8.AttachmentSupport = (doc.YZ_Plane, [""])
sketch8.MapMode = "FlatFace"
sketch8.addGeometry([
    Part.LineSegment(App.Vector(15, 76.5, 0), App.Vector(15, 80.5, 0)),  # 0
    Part.LineSegment(App.Vector(15, 80.5, 0), App.Vector(11, 80.5, 0)),  # 1
    Part.LineSegment(App.Vector(11, 80.5, 0), App.Vector(11, 84.5, 0)),  # 2
    Part.LineSegment(App.Vector(11, 84.5, 0), App.Vector(7, 84.5, 0)),  # 3
    Part.LineSegment(App.Vector(7, 84.5, 0), App.Vector(7, 80.5, 0)),  # 4
    Part.LineSegment(App.Vector(7, 80.5, 0), App.Vector(3, 80.5, 0)),  # 5
    Part.LineSegment(App.Vector(3, 80.5, 0), App.Vector(3, 76.5, 0)),  # 6
    Part.LineSegment(App.Vector(3, 76.5, 0), App.Vector(7, 76.5, 0)),  # 7
    Part.LineSegment(App.Vector(7, 76.5, 0), App.Vector(7, 72.5, 0)),  # 8
    Part.LineSegment(App.Vector(7, 72.5, 0), App.Vector(11, 72.5, 0)),  # 9
    Part.LineSegment(App.Vector(11, 72.5, 0), App.Vector(11, 76.5, 0)),  # 10
    Part.LineSegment(App.Vector(11, 76.5, 0), App.Vector(15, 76.5, 0)),  # 11
], False)
sketch8.addConstraint([
    Sketcher.Constraint("Coincident", 0, 2, 1, 1),
    Sketcher.Constraint("Coincident", 1, 2, 2, 1),
    Sketcher.Constraint("Coincident", 2, 2, 3, 1),
    Sketcher.Constraint("Coincident", 3, 2, 4, 1),
    Sketcher.Constraint("Coincident", 4, 2, 5, 1),
    Sketcher.Constraint("Coincident", 5, 2, 6, 1),
    Sketcher.Constraint("Coincident", 6, 2, 7, 1),
    Sketcher.Constraint("Coincident", 7, 2, 8, 1),
    Sketcher.Constraint("Coincident", 8, 2, 9, 1),
    Sketcher.Constraint("Coincident", 9, 2, 10, 1),
    Sketcher.Constraint("Coincident", 10, 2, 11, 1),
    Sketcher.Constraint("Coincident", 11, 2, 0, 1),
    Sketcher.Constraint("Vertical", 0),
    Sketcher.Constraint("Horizontal", 1),
    Sketcher.Constraint("Vertical", 2),
    Sketcher.Constraint("Horizontal", 3),
    Sketcher.Constraint("Vertical", 4),
    Sketcher.Constraint("Horizontal", 5),
    Sketcher.Constraint("Vertical", 6),
    Sketcher.Constraint("Horizontal", 7),
    Sketcher.Constraint("Vertical", 8),
    Sketcher.Constraint("Horizontal", 9),
    Sketcher.Constraint("Vertical", 10),
    Sketcher.Constraint("Horizontal", 11),
    Sketcher.Constraint("Horizontal", 1, 2, 4, 2),
    Sketcher.Constraint("Horizontal", 7, 2, 10, 2),
    Sketcher.Constraint("Vertical", 4, 2, 7, 2),
    Sketcher.Constraint("Vertical", 2, 2, 9, 2),
    Sketcher.Constraint("Equal", 1, 3),
    Sketcher.Constraint("Equal", 3, 5),
    Sketcher.Constraint("Equal", 11, 0),
    Sketcher.Constraint("Equal", 0, 2),
    Sketcher.Constraint("Equal", 6, 8),
    Sketcher.Constraint("DistanceX", 1, 2, 1, 1, Q("4 mm")),
    Sketcher.Constraint("DistanceX", -1, 1, 0, 2, Q("15 mm")),
    Sketcher.Constraint("DistanceY", -1, 1, 0, 2, Q("80.5 mm")),
])
pocket6 = doc.addObject("PartDesign::Pocket", "Pocket005")
body.addObject(pocket6)
pocket6.Profile = sketch8
pocket6.Length = 10
doc.recompute()

fillet = doc.addObject("PartDesign::Fillet", "Fillet")
body.addObject(fillet)
fillet.Base = (pocket6, edges_at(pocket6, [(-173, 7.5, 84.5)]))
fillet.Radius = 5
doc.recompute()

fillet2 = doc.addObject("PartDesign::Fillet", "Fillet001")
body.addObject(fillet2)
fillet2.Base = (fillet, edges_at(fillet, [(-173, 7.5, -84.5)]))
fillet2.Radius = 5

# Sketch on YZ plane
sketch9 = doc.addObject("Sketcher::SketchObject", "Sketch008")
body.addObject(sketch9)
sketch9.AttachmentSupport = (doc.YZ_Plane, [""])
sketch9.MapMode = "FlatFace"
sketch9.addGeometry([
    Part.Circle(App.Vector(2.317164, -78.5, 0), App.Vector(0, 0, 1), 1.5),
    Part.Circle(App.Vector(12.817164, -78.5, 0), App.Vector(0, 0, 1), 1.25),
], False)
sketch9.addConstraint([
    Sketcher.Constraint("Horizontal", 0, 3, 1, 3),
    Sketcher.Constraint("Diameter", 0, Q("3 mm")),
    Sketcher.Constraint("Diameter", 1, Q("2.5 mm")),
    Sketcher.Constraint("DistanceY", 0, 3, -1, 1, Q("78.5 mm")),
    Sketcher.Constraint("DistanceX", 0, 3, 1, 3, Q("10.5 mm")),
    Sketcher.Constraint("DistanceX", -1, 1, 0, 3, Q("2.317164 mm")),
])
pocket7 = doc.addObject("PartDesign::Pocket", "Pocket006")
body.addObject(pocket7)
pocket7.Profile = sketch9
pocket7.Length = 10

doc.recompute()
